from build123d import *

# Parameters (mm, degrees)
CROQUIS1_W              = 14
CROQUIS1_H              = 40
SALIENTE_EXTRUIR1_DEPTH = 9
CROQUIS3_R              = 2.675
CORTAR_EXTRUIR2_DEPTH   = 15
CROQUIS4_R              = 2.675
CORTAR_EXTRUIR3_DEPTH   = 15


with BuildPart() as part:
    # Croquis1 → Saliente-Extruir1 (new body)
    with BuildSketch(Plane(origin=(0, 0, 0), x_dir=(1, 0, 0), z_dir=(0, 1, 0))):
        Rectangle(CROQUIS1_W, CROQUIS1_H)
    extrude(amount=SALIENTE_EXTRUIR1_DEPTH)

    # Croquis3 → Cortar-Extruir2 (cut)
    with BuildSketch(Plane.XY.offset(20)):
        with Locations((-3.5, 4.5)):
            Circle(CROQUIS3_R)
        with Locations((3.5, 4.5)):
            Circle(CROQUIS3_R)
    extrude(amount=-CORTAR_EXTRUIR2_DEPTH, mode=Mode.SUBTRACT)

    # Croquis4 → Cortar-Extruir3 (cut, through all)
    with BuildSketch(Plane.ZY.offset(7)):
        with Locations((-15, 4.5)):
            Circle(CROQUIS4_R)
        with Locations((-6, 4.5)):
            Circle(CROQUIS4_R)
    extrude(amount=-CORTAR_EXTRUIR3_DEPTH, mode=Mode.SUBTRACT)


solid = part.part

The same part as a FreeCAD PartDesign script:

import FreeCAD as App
import Part
import Sketcher
Q = App.Units.Quantity


def add_polygon(sketch, points):
    """Adds a closed chain of lines whose ends are joined by coincident constraints."""
    first, n = sketch.GeometryCount, len(points)
    for a, b in zip(points, points[1:] + points[:1]):
        sketch.addGeometry(Part.LineSegment(App.Vector(*a, 0), App.Vector(*b, 0)), False)
    for i in range(n):
        sketch.addConstraint(Sketcher.Constraint("Coincident", first + i, 2, first + (i + 1) % n, 1))

doc = App.newDocument("Part")
body = doc.addObject("PartDesign::Body", "Body")

# Sketch on XZ plane
sketch1 = body.newObject("Sketcher::SketchObject", "Sketch")
sketch1.AttachmentSupport = (doc.getObject("XZ_Plane"), [""])
sketch1.MapMode = "FlatFace"
add_polygon(sketch1, [(-7, -20), (-7, 20), (7, 20), (7, -20)])  # lines 0-3
sketch1.addConstraint([
    Sketcher.Constraint("Vertical", 0),
    Sketcher.Constraint("Horizontal", 1),
    Sketcher.Constraint("Vertical", 2),
    Sketcher.Constraint("Horizontal", 3),
    Sketcher.Constraint("Symmetric", 0, 2, 2, 2, -1, 1),
    Sketcher.Constraint("DistanceX", 1, 1, 1, 2, Q("14 mm")),
    Sketcher.Constraint("DistanceY", 0, 1, 0, 2, Q("40 mm")),
])
pad1 = body.newObject("PartDesign::Pad", "Pad")
pad1.Profile = sketch1
pad1.Length = 9
pad1.Reversed = True

# Sketch on XY plane
sketch2 = body.newObject("Sketcher::SketchObject", "Sketch001")
sketch2.AttachmentSupport = (doc.getObject("XY_Plane"), [""])
sketch2.MapMode = "FlatFace"
sketch2.AttachmentOffset = App.Placement(App.Vector(0, 0, 20), App.Rotation())
sketch2.addGeometry([
    Part.Circle(App.Vector(-3.5, 4.5, 0), App.Vector(0, 0, 1), 2.675),
    Part.Circle(App.Vector(3.5, 4.5, 0), App.Vector(0, 0, 1), 2.675),
], False)
sketch2.addConstraint([
    Sketcher.Constraint("Equal", 0, 1),
    Sketcher.Constraint("Symmetric", 0, 3, 1, 3, -2),
    Sketcher.Constraint("Diameter", 0, Q("5.35 mm")),
    Sketcher.Constraint("DistanceX", 0, 3, 1, 3, Q("7 mm")),
    Sketcher.Constraint("DistanceY", -1, 1, 0, 3, Q("4.5 mm")),
])
pocket1 = body.newObject("PartDesign::Pocket", "Pocket")
pocket1.Profile = sketch2
pocket1.Length = 15

# Sketch on YZ plane
sketch3 = body.newObject("Sketcher::SketchObject", "Sketch002")
sketch3.AttachmentSupport = (doc.getObject("YZ_Plane"), [""])
sketch3.MapMode = "FlatFace"
sketch3.AttachmentOffset = App.Placement(App.Vector(0, 0, -7), App.Rotation())
sketch3.addGeometry([
    Part.Circle(App.Vector(4.5, -15, 0), App.Vector(0, 0, 1), 2.675),
    Part.Circle(App.Vector(4.5, -6, 0), App.Vector(0, 0, 1), 2.675),
], False)
sketch3.addConstraint([
    Sketcher.Constraint("Equal", 0, 1),
    Sketcher.Constraint("Vertical", 0, 3, 1, 3),
    Sketcher.Constraint("Diameter", 0, Q("5.35 mm")),
    Sketcher.Constraint("DistanceY", 0, 3, -1, 1, Q("15 mm")),
    Sketcher.Constraint("DistanceY", 1, 3, -1, 1, Q("6 mm")),
    Sketcher.Constraint("DistanceX", -1, 1, 0, 3, Q("4.5 mm")),
])
pocket2 = body.newObject("PartDesign::Pocket", "Pocket001")
pocket2.Profile = sketch3
pocket2.Type = "ThroughAll"
pocket2.Reversed = True

doc.recompute()
